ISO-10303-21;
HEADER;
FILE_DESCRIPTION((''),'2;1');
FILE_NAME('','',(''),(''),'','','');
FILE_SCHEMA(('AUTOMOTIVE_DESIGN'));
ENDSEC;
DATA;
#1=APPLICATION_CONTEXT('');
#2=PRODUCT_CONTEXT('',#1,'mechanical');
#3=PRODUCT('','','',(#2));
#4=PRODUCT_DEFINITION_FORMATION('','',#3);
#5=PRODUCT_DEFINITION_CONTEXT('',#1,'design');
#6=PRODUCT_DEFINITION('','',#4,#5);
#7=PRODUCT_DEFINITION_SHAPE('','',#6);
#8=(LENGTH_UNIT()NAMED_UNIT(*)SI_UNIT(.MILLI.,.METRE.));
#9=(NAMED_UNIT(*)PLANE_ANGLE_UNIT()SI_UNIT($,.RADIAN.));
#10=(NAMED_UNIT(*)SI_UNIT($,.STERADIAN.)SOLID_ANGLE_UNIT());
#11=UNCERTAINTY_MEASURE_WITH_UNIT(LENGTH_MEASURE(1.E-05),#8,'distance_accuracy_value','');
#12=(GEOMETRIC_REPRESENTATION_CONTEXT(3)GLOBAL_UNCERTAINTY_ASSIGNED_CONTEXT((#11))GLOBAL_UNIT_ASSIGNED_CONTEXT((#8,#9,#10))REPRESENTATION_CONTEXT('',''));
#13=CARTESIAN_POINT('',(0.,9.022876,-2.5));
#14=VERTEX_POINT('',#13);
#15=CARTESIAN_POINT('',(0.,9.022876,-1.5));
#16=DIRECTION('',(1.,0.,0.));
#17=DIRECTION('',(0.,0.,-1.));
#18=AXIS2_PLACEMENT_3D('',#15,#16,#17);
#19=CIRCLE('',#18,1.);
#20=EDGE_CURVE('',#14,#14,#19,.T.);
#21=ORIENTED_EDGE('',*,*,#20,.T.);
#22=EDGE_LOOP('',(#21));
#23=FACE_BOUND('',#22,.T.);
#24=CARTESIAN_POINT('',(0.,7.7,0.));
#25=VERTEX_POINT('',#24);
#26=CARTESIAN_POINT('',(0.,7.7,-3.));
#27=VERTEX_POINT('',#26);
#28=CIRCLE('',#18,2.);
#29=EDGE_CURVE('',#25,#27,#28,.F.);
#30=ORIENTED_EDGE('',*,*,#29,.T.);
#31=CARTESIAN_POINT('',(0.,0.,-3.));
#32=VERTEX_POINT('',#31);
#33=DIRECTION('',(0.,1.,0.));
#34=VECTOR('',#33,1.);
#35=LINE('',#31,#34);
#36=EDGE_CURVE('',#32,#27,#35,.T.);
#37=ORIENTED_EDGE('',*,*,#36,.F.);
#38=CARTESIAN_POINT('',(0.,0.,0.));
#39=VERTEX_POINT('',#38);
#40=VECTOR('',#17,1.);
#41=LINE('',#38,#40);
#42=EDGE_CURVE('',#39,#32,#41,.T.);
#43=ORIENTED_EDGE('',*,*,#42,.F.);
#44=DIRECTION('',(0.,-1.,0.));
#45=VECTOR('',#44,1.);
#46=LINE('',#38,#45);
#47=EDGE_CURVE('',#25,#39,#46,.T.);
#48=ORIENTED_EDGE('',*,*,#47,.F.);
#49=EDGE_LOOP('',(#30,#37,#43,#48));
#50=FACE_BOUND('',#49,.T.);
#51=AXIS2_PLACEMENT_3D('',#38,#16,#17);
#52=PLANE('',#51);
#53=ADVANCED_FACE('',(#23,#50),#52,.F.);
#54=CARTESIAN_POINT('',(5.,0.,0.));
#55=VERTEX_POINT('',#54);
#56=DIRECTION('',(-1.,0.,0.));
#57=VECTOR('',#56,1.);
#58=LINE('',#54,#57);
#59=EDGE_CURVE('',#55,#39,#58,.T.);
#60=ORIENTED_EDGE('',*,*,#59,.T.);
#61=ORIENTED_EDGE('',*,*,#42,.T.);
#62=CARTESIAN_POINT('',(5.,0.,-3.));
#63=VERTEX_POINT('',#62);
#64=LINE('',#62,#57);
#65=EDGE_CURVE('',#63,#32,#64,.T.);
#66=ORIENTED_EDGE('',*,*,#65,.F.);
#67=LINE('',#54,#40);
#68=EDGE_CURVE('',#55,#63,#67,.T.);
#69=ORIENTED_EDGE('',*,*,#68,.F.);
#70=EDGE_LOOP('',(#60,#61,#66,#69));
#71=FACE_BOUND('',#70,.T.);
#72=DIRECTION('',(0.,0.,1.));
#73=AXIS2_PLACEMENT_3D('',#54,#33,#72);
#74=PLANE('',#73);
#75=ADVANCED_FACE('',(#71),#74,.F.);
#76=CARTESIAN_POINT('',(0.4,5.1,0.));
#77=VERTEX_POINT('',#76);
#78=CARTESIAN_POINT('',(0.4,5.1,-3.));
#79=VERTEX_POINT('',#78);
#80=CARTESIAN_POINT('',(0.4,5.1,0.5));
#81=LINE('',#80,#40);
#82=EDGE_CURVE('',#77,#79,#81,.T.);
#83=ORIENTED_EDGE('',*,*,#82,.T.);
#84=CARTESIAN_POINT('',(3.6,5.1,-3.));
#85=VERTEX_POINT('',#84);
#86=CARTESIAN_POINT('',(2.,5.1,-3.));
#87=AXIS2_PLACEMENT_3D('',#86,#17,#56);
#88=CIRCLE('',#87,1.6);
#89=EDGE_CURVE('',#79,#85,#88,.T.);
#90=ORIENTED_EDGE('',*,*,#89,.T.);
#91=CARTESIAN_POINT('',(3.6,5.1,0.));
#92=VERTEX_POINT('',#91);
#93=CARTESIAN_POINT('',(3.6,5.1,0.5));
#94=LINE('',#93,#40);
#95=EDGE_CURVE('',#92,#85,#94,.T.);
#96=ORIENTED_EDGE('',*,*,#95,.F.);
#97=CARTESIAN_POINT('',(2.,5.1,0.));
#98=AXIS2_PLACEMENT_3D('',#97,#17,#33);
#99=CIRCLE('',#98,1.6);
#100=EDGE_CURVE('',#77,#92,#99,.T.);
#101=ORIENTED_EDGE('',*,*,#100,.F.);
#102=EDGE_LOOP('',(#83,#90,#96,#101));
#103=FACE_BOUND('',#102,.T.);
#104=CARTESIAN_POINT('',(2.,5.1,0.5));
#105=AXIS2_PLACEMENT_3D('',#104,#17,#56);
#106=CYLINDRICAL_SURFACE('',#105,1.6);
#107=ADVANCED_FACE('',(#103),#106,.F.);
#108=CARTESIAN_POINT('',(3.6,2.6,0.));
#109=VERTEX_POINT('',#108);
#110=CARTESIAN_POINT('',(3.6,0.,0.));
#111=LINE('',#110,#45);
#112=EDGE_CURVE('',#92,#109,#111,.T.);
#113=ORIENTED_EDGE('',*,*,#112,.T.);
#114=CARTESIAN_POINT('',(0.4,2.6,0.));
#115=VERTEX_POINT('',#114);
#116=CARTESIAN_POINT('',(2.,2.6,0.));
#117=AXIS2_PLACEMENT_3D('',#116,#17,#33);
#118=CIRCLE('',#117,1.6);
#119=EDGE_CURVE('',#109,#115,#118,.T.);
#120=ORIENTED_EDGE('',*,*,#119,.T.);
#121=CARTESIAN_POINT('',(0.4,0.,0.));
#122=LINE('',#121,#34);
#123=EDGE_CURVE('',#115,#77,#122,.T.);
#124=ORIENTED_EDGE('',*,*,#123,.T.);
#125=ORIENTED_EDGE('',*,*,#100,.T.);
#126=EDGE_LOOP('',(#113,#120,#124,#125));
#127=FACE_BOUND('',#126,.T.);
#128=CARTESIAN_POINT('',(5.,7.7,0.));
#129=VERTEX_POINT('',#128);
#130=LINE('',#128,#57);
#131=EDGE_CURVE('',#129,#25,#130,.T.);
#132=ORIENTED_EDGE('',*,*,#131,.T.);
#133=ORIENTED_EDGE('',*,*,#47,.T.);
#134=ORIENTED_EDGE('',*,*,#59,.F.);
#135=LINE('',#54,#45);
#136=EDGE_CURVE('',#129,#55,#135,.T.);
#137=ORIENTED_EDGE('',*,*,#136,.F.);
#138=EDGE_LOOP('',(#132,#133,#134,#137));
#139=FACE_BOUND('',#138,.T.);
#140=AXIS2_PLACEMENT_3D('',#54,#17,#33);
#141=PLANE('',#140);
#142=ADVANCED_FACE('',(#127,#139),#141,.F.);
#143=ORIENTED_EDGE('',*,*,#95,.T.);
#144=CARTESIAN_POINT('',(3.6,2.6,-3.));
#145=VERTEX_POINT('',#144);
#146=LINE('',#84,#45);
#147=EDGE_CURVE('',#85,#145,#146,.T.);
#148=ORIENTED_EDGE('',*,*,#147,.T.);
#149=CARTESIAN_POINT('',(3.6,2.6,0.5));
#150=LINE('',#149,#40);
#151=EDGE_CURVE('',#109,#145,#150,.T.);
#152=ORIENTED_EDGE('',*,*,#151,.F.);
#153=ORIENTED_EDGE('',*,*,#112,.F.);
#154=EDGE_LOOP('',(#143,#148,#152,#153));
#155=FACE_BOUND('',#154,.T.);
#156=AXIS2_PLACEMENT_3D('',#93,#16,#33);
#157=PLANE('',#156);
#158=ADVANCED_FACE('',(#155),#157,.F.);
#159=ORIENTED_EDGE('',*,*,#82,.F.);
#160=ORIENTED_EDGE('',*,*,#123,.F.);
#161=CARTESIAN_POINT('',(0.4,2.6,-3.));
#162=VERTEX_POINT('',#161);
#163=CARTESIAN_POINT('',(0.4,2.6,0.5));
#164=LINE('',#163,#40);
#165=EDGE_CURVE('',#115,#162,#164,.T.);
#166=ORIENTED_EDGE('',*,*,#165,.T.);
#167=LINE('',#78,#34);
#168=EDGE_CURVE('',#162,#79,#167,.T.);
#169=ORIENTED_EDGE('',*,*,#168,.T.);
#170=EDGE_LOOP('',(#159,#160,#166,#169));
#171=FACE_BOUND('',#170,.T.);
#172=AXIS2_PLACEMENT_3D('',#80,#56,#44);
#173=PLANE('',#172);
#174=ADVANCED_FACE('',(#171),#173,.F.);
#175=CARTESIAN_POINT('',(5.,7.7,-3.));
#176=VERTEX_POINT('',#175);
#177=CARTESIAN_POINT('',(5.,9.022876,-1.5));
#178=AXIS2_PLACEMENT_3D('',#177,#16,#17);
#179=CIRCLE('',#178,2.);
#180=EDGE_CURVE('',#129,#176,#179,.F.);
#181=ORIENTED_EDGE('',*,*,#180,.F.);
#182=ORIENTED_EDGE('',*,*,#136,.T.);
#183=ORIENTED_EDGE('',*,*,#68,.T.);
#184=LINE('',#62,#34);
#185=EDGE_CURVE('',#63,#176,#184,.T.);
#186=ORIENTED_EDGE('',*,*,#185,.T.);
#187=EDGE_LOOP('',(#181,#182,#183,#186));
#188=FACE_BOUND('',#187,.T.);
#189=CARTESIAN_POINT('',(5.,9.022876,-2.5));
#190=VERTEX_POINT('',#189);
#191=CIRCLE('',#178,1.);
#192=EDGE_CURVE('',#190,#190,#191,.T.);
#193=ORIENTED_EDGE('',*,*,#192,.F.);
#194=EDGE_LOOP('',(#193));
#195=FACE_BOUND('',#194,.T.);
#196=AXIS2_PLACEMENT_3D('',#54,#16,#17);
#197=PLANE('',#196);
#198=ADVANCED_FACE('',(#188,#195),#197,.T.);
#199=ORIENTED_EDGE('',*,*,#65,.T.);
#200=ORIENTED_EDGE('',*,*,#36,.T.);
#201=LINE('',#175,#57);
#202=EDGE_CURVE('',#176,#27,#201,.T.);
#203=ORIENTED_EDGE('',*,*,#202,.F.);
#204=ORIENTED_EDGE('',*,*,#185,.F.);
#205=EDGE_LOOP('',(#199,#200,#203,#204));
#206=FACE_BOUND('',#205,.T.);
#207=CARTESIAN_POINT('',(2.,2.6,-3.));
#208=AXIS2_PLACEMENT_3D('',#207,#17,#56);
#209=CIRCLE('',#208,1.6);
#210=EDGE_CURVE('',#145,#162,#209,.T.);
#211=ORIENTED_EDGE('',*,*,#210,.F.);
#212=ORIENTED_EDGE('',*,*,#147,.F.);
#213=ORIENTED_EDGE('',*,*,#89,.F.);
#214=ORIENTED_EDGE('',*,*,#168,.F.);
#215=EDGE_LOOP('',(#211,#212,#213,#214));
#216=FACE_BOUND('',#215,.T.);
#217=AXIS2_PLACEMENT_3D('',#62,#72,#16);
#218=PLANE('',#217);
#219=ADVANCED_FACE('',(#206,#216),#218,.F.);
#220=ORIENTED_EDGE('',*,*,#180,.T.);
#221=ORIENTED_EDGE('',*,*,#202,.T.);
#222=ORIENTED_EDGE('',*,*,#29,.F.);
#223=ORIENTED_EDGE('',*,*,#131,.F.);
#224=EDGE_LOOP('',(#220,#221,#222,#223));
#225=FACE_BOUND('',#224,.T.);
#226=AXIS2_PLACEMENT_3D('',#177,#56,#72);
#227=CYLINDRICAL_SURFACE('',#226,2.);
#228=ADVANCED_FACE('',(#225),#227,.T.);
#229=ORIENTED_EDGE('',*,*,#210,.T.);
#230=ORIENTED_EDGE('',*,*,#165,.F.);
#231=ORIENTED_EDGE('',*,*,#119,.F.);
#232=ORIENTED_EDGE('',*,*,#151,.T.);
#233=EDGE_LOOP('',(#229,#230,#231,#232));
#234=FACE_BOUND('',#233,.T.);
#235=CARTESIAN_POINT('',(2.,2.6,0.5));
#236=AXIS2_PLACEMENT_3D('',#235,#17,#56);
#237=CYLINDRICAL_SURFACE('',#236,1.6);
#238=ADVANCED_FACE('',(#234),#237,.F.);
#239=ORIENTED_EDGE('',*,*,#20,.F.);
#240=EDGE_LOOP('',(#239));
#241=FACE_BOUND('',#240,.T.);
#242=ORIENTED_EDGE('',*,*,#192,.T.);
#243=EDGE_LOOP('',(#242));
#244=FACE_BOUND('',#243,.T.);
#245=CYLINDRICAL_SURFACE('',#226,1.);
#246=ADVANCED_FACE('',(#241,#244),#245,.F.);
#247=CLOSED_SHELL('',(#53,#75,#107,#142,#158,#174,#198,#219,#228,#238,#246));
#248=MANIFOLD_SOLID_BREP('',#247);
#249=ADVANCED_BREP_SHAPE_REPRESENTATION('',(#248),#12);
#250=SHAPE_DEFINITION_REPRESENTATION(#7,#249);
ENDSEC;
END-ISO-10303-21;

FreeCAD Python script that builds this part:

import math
import FreeCAD as App
import Part
import Sketcher
Q = App.Units.Quantity

doc = App.newDocument("Part")
params = doc.addObject("Spreadsheet::Sheet", "Params")
for row, (alias, value) in enumerate([
    ("sketch1_diameter", "2 mm"),
    ("sketch1_radius", "2 mm"),
    ("sketch1_height", "3 mm"),
    ("sketch1_width", "7.7 mm"),
    ("pad1_length", "5 mm"),
    ("sketch2_radius", "1.6 mm"),
    ("sketch2_height", "2.5 mm"),
], start=1):
    params.set(f"A{row}", alias)
    params.set(f"B{row}", "=" + value)
    params.setAlias(f"B{row}", alias)

body = doc.addObject("PartDesign::Body", "Body")

# Sketch on YZ plane
sketch1 = body.newObject("Sketcher::SketchObject", "Sketch")
sketch1.AttachmentSupport = (doc.getObject("YZ_Plane"), [""])
sketch1.MapMode = "FlatFace"
sketch1.addGeometry(Part.ArcOfCircle(Part.Circle(App.Vector(9.022876, -1.5, 0), App.Vector(0, 0, 1), 2), math.radians(-131.409622), math.radians(131.409622)), False)
sketch1.addGeometry(Part.LineSegment(App.Vector(7.7, 0, 0), App.Vector(0, 0, 0)), False)
sketch1.addGeometry(Part.LineSegment(App.Vector(0, 0, 0), App.Vector(0, -3, 0)), False)
sketch1.addGeometry(Part.LineSegment(App.Vector(0, -3, 0), App.Vector(7.7, -3, 0)), False)
sketch1.addGeometry(Part.Circle(App.Vector(9.022876, -1.5, 0), App.Vector(0, 0, 1), 1), False)
sketch1.addConstraint(Sketcher.Constraint("Coincident", 0, 2, 1, 1))
sketch1.addConstraint(Sketcher.Constraint("Coincident", 1, 2, 2, 1))
sketch1.addConstraint(Sketcher.Constraint("Coincident", 2, 2, 3, 1))
sketch1.addConstraint(Sketcher.Constraint("Coincident", 3, 2, 0, 1))
sketch1.addConstraint(Sketcher.Constraint("Horizontal", 1))
sketch1.addConstraint(Sketcher.Constraint("Vertical", 2))
sketch1.addConstraint(Sketcher.Constraint("Horizontal", 3))
sketch1.addConstraint(Sketcher.Constraint("Coincident", 1, 2, -1, 1))
sketch1.addConstraint(Sketcher.Constraint("Coincident", 4, 3, 0, 3))
sketch1.addConstraint(Sketcher.Constraint("Vertical", 0, 2, 3, 2))
sketch1.addConstraint(Sketcher.Constraint("Diameter", 4, Q("2 mm")))
sketch1.addConstraint(Sketcher.Constraint("Radius", 0, Q("2 mm")))
sketch1.addConstraint(Sketcher.Constraint("DistanceY", 2, 2, 2, 1, Q("3 mm")))
sketch1.addConstraint(Sketcher.Constraint("DistanceX", 1, 2, 1, 1, Q("7.7 mm")))
sketch1.setExpression("Constraints[10]", "Params.sketch1_diameter")
sketch1.setExpression("Constraints[11]", "Params.sketch1_radius")
sketch1.setExpression("Constraints[12]", "Params.sketch1_height")
sketch1.setExpression("Constraints[13]", "Params.sketch1_width")
pad1 = body.newObject("PartDesign::Pad", "Pad")
pad1.Profile = sketch1
pad1.setExpression("Length", "Params.pad1_length")

# Sketch on XY plane
sketch2 = body.newObject("Sketcher::SketchObject", "Sketch001")
sketch2.AttachmentSupport = (doc.getObject("XY_Plane"), [""])
sketch2.MapMode = "FlatFace"
sketch2.AttachmentOffset = App.Placement(App.Vector(0, 0, -3), App.Rotation())
sketch2.addGeometry(Part.LineSegment(App.Vector(0.4, 2.6, 0), App.Vector(0.4, 5.1, 0)), False)
sketch2.addGeometry(Part.ArcOfCircle(Part.Circle(App.Vector(2, 5.1, 0), App.Vector(0, 0, 1), 1.6), math.radians(0), math.radians(180)), False)
sketch2.addGeometry(Part.LineSegment(App.Vector(3.6, 5.1, 0), App.Vector(3.6, 2.6, 0)), False)
sketch2.addGeometry(Part.ArcOfCircle(Part.Circle(App.Vector(2, 2.6, 0), App.Vector(0, 0, 1), 1.6), math.radians(180), math.radians(360)), False)
sketch2.addConstraint(Sketcher.Constraint("Tangent", 0, 2, 1, 2))
sketch2.addConstraint(Sketcher.Constraint("Tangent", 1, 1, 2, 1))
sketch2.addConstraint(Sketcher.Constraint("Tangent", 2, 2, 3, 2))
sketch2.addConstraint(Sketcher.Constraint("Tangent", 3, 1, 0, 1))
sketch2.addConstraint(Sketcher.Constraint("Vertical", 0))
sketch2.addConstraint(Sketcher.Constraint("Vertical", 2))
sketch2.addConstraint(Sketcher.Constraint("Radius", 1, Q("1.6 mm")))
sketch2.addConstraint(Sketcher.Constraint("DistanceY", 0, 1, 0, 2, Q("2.5 mm")))
sketch2.addConstraint(Sketcher.Constraint("DistanceX", -1, 1, 1, 3, Q("2 mm")))
sketch2.addConstraint(Sketcher.Constraint("DistanceY", -1, 1, 1, 3, Q("5.1 mm")))
sketch2.setExpression("Constraints[6]", "Params.sketch2_radius")
sketch2.setExpression("Constraints[7]", "Params.sketch2_height")
pocket1 = body.newObject("PartDesign::Pocket", "Pocket")
pocket1.Profile = sketch2
pocket1.Type = "ThroughAll"
pocket1.Reversed = True

doc.recompute()
